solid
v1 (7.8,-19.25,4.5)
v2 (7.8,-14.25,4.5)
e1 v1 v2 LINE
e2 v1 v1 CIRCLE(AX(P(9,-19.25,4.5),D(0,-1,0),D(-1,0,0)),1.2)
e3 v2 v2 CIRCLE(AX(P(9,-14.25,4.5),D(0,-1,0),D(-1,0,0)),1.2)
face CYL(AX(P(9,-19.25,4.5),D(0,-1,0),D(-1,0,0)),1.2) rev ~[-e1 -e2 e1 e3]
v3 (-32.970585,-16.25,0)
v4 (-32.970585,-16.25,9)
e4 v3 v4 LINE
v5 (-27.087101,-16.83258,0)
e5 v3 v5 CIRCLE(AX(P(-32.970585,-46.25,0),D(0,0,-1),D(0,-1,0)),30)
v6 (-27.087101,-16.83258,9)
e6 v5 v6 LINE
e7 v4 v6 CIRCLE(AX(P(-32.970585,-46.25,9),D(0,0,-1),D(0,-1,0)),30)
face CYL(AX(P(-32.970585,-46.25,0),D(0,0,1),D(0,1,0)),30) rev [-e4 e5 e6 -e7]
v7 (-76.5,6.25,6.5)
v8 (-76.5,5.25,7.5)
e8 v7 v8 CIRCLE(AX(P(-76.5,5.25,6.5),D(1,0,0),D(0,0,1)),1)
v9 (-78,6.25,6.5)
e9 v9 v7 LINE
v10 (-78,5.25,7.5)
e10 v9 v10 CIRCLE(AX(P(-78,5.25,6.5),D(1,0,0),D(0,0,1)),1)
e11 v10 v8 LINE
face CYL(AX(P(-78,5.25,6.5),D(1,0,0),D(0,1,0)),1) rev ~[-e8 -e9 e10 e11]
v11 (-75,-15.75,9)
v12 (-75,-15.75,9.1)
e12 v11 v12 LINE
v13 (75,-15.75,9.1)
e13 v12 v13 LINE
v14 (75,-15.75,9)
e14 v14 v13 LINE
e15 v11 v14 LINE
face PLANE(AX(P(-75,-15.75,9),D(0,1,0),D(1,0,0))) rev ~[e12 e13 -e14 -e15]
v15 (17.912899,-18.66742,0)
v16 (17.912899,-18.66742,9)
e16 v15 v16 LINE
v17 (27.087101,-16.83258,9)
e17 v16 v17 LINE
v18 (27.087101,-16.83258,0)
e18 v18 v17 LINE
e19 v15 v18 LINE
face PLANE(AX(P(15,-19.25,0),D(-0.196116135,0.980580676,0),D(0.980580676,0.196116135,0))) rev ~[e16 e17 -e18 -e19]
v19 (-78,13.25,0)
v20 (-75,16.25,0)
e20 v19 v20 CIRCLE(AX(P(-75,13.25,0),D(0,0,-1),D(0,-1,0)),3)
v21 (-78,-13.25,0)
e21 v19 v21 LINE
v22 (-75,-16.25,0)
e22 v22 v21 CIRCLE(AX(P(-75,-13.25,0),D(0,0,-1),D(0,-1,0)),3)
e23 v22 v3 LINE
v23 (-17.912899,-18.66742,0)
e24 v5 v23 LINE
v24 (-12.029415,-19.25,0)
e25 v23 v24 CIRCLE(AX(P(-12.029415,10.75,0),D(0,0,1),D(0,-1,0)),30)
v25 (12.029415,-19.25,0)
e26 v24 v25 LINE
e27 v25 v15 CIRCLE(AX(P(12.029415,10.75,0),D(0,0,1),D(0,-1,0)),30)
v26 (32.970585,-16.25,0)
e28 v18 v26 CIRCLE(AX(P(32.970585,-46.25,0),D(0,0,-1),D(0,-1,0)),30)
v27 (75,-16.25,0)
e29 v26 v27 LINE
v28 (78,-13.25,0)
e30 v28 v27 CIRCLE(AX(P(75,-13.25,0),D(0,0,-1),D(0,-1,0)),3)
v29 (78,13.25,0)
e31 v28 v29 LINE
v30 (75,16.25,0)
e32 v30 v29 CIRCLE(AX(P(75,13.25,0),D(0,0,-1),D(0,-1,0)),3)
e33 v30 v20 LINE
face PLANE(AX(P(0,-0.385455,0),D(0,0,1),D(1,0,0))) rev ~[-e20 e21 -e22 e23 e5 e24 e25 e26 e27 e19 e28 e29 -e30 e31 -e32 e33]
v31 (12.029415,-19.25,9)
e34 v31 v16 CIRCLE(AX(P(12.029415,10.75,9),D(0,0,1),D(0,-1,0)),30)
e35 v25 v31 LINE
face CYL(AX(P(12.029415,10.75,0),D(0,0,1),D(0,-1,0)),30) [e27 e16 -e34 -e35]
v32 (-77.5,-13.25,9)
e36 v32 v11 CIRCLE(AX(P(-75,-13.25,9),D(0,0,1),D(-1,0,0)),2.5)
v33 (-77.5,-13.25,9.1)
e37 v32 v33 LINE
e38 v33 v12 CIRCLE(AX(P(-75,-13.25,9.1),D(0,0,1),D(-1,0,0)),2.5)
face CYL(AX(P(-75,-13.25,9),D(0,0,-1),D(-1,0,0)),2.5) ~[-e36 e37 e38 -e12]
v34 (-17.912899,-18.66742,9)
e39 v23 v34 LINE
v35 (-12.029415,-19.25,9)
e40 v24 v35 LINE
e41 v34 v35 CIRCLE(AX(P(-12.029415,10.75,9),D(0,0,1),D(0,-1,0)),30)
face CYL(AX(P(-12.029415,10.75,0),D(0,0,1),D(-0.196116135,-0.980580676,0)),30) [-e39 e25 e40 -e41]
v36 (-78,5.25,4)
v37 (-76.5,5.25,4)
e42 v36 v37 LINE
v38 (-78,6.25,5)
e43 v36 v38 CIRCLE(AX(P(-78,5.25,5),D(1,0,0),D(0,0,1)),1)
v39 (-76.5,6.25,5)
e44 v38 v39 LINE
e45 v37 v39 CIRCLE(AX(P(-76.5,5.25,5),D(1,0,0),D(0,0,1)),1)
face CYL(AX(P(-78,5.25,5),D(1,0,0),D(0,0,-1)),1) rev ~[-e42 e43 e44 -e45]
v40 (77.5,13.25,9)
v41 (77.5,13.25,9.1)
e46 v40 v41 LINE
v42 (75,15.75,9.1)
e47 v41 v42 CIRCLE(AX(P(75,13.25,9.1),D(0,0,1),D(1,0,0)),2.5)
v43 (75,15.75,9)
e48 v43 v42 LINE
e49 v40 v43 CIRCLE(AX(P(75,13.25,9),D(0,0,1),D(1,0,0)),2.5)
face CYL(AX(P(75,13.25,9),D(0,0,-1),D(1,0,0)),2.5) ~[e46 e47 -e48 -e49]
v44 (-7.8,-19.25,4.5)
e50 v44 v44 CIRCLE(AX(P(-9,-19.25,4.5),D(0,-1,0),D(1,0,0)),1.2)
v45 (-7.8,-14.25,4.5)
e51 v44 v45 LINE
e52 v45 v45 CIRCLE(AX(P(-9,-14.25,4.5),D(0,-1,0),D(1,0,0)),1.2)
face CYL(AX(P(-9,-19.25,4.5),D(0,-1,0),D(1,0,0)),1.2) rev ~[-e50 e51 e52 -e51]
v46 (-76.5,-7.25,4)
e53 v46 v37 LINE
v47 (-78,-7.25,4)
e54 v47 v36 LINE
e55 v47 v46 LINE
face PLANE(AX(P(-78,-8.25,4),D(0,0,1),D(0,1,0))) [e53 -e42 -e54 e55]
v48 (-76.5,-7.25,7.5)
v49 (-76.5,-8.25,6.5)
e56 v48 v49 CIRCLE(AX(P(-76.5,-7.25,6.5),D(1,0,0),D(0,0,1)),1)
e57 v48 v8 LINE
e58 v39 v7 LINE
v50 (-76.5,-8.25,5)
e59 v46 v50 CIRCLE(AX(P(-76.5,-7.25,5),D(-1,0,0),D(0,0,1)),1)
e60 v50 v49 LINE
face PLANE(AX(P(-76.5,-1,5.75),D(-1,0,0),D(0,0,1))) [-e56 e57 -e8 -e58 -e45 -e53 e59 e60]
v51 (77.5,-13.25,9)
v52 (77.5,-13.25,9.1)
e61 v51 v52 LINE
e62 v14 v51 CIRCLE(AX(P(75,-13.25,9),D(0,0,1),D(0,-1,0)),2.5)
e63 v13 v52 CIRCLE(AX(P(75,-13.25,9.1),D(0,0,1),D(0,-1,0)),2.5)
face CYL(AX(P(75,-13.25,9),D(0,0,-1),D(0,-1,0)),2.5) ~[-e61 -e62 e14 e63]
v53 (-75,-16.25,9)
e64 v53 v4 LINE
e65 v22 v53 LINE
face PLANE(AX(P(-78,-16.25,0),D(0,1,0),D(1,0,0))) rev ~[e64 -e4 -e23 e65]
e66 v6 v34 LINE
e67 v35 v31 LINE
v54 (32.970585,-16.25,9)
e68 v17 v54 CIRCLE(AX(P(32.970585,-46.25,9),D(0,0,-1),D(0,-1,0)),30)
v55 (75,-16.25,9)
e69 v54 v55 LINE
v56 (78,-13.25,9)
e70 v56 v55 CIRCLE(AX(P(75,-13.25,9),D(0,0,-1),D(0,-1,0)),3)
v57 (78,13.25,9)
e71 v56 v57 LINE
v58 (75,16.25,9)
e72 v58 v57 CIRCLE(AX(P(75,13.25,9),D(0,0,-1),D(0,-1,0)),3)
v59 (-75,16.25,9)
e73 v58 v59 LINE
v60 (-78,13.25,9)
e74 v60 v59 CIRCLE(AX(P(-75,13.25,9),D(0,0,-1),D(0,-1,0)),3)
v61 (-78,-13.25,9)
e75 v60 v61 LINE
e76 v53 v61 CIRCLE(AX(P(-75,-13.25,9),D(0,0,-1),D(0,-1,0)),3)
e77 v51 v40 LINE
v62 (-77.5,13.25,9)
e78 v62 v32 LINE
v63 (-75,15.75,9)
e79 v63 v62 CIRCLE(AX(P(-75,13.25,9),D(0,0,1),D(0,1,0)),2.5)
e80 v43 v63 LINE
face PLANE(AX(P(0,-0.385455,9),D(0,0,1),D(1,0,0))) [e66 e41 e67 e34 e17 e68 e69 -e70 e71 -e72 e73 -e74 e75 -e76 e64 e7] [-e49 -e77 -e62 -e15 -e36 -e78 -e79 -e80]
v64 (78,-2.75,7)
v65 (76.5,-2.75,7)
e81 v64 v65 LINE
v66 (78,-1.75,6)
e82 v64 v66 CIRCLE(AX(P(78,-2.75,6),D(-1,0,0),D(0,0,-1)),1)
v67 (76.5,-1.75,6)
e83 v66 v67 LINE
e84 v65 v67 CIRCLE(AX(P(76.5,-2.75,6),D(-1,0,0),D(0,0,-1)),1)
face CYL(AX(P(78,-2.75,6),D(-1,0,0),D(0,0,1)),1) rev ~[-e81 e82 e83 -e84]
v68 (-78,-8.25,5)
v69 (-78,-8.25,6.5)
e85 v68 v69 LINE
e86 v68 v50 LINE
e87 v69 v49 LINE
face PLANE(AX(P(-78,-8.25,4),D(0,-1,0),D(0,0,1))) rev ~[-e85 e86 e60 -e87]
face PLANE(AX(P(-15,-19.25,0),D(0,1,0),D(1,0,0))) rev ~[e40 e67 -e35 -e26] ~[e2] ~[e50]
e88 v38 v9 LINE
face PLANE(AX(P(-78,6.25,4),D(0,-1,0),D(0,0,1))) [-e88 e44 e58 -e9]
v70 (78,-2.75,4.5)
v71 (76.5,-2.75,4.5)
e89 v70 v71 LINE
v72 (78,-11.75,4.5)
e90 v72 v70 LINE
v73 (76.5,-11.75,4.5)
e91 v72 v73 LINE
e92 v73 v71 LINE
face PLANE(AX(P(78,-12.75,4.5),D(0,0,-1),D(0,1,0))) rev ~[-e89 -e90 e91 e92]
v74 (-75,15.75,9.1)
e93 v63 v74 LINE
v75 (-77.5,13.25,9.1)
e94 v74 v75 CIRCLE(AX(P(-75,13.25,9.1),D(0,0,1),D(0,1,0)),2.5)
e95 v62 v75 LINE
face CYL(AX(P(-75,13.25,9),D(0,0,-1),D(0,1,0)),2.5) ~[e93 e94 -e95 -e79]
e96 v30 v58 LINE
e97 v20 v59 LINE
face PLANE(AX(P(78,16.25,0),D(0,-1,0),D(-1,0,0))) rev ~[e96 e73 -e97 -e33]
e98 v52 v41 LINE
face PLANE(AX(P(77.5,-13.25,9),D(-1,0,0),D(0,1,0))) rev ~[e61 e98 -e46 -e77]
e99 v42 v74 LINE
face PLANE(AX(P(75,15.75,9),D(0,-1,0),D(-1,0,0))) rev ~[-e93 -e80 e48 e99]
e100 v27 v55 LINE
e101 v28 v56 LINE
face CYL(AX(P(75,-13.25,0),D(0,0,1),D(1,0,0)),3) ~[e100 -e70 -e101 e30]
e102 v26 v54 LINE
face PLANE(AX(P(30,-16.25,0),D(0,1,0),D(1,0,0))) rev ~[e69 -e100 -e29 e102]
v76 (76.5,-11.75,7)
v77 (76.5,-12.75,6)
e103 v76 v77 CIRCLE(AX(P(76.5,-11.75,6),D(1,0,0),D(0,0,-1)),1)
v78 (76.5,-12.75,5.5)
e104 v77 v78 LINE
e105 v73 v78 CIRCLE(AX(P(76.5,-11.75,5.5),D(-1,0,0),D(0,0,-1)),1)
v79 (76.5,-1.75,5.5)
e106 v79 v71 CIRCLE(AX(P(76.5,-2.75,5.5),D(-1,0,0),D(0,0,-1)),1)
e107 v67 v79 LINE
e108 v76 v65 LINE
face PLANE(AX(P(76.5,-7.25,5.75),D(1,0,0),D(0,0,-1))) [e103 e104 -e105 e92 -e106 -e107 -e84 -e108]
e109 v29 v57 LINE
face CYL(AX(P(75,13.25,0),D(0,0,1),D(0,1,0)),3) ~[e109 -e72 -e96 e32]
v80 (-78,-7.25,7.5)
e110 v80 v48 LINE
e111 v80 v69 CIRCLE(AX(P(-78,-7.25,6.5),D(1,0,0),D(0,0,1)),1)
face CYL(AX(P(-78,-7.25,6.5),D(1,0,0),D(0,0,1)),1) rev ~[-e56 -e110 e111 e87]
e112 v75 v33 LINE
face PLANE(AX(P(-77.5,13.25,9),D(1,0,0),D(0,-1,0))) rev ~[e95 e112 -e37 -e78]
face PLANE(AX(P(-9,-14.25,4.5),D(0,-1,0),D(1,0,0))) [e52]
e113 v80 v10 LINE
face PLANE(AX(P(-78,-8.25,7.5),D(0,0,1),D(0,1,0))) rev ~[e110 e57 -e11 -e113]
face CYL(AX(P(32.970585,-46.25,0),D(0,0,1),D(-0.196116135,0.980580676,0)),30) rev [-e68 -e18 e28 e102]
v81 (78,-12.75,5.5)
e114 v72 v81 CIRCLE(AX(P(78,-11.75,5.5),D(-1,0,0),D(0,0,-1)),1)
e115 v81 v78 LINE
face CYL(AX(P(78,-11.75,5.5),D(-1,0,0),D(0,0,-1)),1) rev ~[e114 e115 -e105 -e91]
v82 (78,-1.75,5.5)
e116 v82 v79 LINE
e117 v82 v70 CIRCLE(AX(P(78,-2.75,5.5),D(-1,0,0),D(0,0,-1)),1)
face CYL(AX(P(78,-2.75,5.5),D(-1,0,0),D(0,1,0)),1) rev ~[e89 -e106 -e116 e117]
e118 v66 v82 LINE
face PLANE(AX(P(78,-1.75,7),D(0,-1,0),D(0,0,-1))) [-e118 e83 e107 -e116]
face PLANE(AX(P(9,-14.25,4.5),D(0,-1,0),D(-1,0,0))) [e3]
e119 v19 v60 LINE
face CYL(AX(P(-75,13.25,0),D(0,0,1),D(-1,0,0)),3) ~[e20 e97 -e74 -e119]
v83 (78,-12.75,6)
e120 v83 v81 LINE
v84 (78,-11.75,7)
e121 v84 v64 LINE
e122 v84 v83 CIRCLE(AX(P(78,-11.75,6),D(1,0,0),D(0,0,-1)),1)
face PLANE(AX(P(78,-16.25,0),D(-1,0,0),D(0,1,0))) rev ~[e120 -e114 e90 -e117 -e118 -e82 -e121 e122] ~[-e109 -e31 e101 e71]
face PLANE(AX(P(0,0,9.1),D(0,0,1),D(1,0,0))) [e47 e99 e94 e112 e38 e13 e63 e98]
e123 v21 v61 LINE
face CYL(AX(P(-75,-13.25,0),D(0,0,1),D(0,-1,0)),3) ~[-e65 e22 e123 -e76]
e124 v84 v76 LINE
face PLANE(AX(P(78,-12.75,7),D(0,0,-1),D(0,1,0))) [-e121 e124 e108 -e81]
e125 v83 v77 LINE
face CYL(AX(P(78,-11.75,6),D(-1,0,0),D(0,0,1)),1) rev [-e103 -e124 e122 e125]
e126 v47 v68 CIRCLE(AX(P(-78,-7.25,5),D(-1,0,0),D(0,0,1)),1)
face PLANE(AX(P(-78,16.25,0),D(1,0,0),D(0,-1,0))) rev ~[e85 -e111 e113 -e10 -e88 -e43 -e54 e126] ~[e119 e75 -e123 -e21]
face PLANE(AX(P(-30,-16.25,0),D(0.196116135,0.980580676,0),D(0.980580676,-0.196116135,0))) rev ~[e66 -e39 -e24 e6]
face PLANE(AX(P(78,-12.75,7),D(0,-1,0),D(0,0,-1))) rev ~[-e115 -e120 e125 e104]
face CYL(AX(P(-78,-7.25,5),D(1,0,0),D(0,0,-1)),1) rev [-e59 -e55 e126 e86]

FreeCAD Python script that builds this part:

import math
import FreeCAD as App
import Part
import Sketcher

V = App.Vector


def edges_at(feature, points):
    """Names of the edges that pass closest to the given points."""
    edges = feature.Shape.Edges
    near = lambda p: min(range(len(edges)), key=lambda i: edges[i].distToShape(Part.Vertex(*p))[0])
    return sorted({f"Edge{near(p) + 1}" for p in points})


def add_polygon(sketch, points):
    """Adds a closed chain of lines whose ends are joined by coincident constraints."""
    first, n = sketch.GeometryCount, len(points)
    for a, b in zip(points, points[1:] + points[:1]):
        sketch.addGeometry(Part.LineSegment(App.Vector(*a, 0), App.Vector(*b, 0)), False)
    for i in range(n):
        sketch.addConstraint(Sketcher.Constraint("Coincident", first + i, 2, first + (i + 1) % n, 1))

doc = App.newDocument("Part")
body = doc.addObject("PartDesign::Body", "Body")

# Sketch on XY plane
sketch1 = body.newObject("Sketcher::SketchObject", "Sketch")
sketch1.AttachmentSupport = (doc.getObject("XY_Plane"), [""])
sketch1.MapMode = "FlatFace"
add_polygon(sketch1, [(78, -16), (78, 16), (-78, 16), (-78, -16), (-30, -16), (-15, -19), (15, -19), (30, -16)])  # lines 0-7
sketch1.addConstraint([
    Sketcher.Constraint("Vertical", 0),
    Sketcher.Constraint("Horizontal", 1),
    Sketcher.Constraint("Vertical", 2),
    Sketcher.Constraint("Horizontal", 3),
    Sketcher.Constraint("Horizontal", 5),
    Sketcher.Constraint("Horizontal", 7),
    Sketcher.Constraint("Symmetric", 0, 2, 2, 2, -1, 1),
    Sketcher.Constraint("Symmetric", 3, 2, 6, 2, -2),
    Sketcher.Constraint("Equal", 4, 6),
    Sketcher.Constraint("DistanceX", 1, 2, 1, 1, 156.0),
    Sketcher.Constraint("DistanceX", 3, 1, 3, 2, 48.0),
    Sketcher.Constraint("DistanceX", 5, 1, 5, 2, 30.0),
    Sketcher.Constraint("DistanceY", 0, 1, 0, 2, 32.5),
    Sketcher.Constraint("DistanceY", 4, 2, 3, 2, 3.0),
])
pad1 = body.newObject("PartDesign::Pad", "Pad")
pad1.Profile = sketch1
pad1.Length = 9
doc.recompute()

fillet = body.newObject("PartDesign::Fillet", "Fillet")
fillet.Base = (pad1, edges_at(pad1, [
    (30, -16.25, 4.5),
    (15, -19.25, 4.5),
    (-15, -19.25, 4.5),
    (-30, -16.25, 4.5),
]))
fillet.Radius = 30
doc.recompute()

fillet2 = body.newObject("PartDesign::Fillet", "Fillet001")
fillet2.Base = (fillet, edges_at(fillet, [
    (-78, 16.25, 4.5),
    (78, 16.25, 4.5),
    (78, -16.25, 4.5),
    (-78, -16.25, 4.5),
]))
fillet2.Radius = 3

# Sketch on XY plane
sketch2 = body.newObject("Sketcher::SketchObject", "Sketch001")
sketch2.AttachmentSupport = (doc.getObject("XY_Plane"), [""])
sketch2.MapMode = "FlatFace"
sketch2.AttachmentOffset = App.Placement(V(0, 0, 9), App.Rotation())
sketch2.addGeometry([
    Part.ArcOfCircle(Part.Circle(V(75, -13.2, 0), V(0, 0, 1), 2.5), math.radians(-90), math.radians(0)),  # 0
    Part.LineSegment(V(77.5, -13.2, 0), V(77.5, 13.2, 0)),  # 1
    Part.ArcOfCircle(Part.Circle(V(75, 13.2, 0), V(0, 0, 1), 2.5), math.radians(0), math.radians(90)),  # 2
    Part.LineSegment(V(75, 15.8, 0), V(-75, 15.8, 0)),  # 3
    Part.ArcOfCircle(Part.Circle(V(-75, 13.2, 0), V(0, 0, 1), 2.5), math.radians(90), math.radians(180)),  # 4
    Part.LineSegment(V(-77.5, 13.2, 0), V(-77.5, -13.2, 0)),  # 5
    Part.ArcOfCircle(Part.Circle(V(-75, -13.2, 0), V(0, 0, 1), 2.5), math.radians(180), math.radians(270)),  # 6
    Part.LineSegment(V(-75, -15.8, 0), V(75, -15.8, 0)),  # 7
], False)
sketch2.addConstraint([
    Sketcher.Constraint("Tangent", 0, 2, 1, 1),
    Sketcher.Constraint("Tangent", 1, 2, 2, 1),
    Sketcher.Constraint("Tangent", 2, 2, 3, 1),
    Sketcher.Constraint("Tangent", 3, 2, 4, 1),
    Sketcher.Constraint("Tangent", 4, 2, 5, 1),
    Sketcher.Constraint("Tangent", 5, 2, 6, 1),
    Sketcher.Constraint("Tangent", 6, 2, 7, 1),
    Sketcher.Constraint("Tangent", 7, 2, 0, 1),
    Sketcher.Constraint("Vertical", 1),
    Sketcher.Constraint("Horizontal", 3),
    Sketcher.Constraint("Vertical", 5),
    Sketcher.Constraint("Horizontal", 7),
    Sketcher.Constraint("Equal", 0, 2),
    Sketcher.Constraint("Equal", 2, 4),
    Sketcher.Constraint("Equal", 4, 6),
    Sketcher.Constraint("Symmetric", 0, 3, 4, 3, -1, 1),
    Sketcher.Constraint("Radius", 0, 2.5),
    Sketcher.Constraint("DistanceX", 3, 2, 3, 1, 150.0),
    Sketcher.Constraint("DistanceY", 1, 1, 1, 2, 26.5),
])
pad2 = body.newObject("PartDesign::Pad", "Pad001")
pad2.Profile = sketch2
pad2.Length = 0.1

# Sketch on XZ plane
sketch3 = body.newObject("Sketcher::SketchObject", "Sketch002")
sketch3.AttachmentSupport = (doc.getObject("XZ_Plane"), [""])
sketch3.MapMode = "FlatFace"
sketch3.AttachmentOffset = App.Placement(V(0, 0, 19.25), App.Rotation())
sketch3.addGeometry([
    Part.Circle(V(-9, 4.5, 0), V(0, 0, 1), 1.2),
    Part.Circle(V(9, 4.5, 0), V(0, 0, 1), 1.2),
], False)
sketch3.addConstraint([
    Sketcher.Constraint("Equal", 0, 1),
    Sketcher.Constraint("Symmetric", 0, 3, 1, 3, -2),
    Sketcher.Constraint("Diameter", 0, 2.4),
    Sketcher.Constraint("DistanceX", 0, 3, -1, 1, 9.0),
    Sketcher.Constraint("DistanceY", -1, 1, 0, 3, 4.5),
])
pocket1 = body.newObject("PartDesign::Pocket", "Pocket")
pocket1.Profile = sketch3
pocket1.Length = 5

# Sketch on YZ plane
sketch4 = body.newObject("Sketcher::SketchObject", "Sketch003")
sketch4.AttachmentSupport = (doc.getObject("YZ_Plane"), [""])
sketch4.MapMode = "FlatFace"
sketch4.AttachmentOffset = App.Placement(V(0, 0, -78), App.Rotation())
add_polygon(sketch4, [(6.2, 4), (-8.2, 4), (-8.2, 7.5), (6.2, 7.5)])  # lines 0-3
sketch4.addConstraint([
    Sketcher.Constraint("Horizontal", 0),
    Sketcher.Constraint("Vertical", 1),
    Sketcher.Constraint("Horizontal", 2),
    Sketcher.Constraint("Vertical", 3),
    Sketcher.Constraint("DistanceX", 0, 2, 0, 1, 14.5),
    Sketcher.Constraint("DistanceY", 1, 1, 1, 2, 3.5),
    Sketcher.Constraint("DistanceY", -1, 1, 0, 2, 4.0),
    Sketcher.Constraint("DistanceX", 0, 2, -1, 1, 8.25),
])
pocket2 = body.newObject("PartDesign::Pocket", "Pocket001")
pocket2.Profile = sketch4
pocket2.Length = 1.5
pocket2.Reversed = True

# Sketch on YZ plane
sketch5 = body.newObject("Sketcher::SketchObject", "Sketch004")
sketch5.AttachmentSupport = (doc.getObject("YZ_Plane"), [""])
sketch5.MapMode = "FlatFace"
sketch5.AttachmentOffset = App.Placement(V(0, 0, 78), App.Rotation())
add_polygon(sketch5, [(-1.8, 7), (-12.8, 7), (-12.8, 4.5), (-1.8, 4.5)])  # lines 0-3
sketch5.addConstraint([
    Sketcher.Constraint("Horizontal", 0),
    Sketcher.Constraint("Vertical", 1),
    Sketcher.Constraint("Horizontal", 2),
    Sketcher.Constraint("Vertical", 3),
    Sketcher.Constraint("DistanceX", 0, 2, 0, 1, 11.0),
    Sketcher.Constraint("DistanceY", 1, 2, 1, 1, 2.5),
    Sketcher.Constraint("DistanceY", -1, 1, 0, 2, 7.0),
    Sketcher.Constraint("DistanceX", 0, 2, -1, 1, 12.75),
])
pocket3 = body.newObject("PartDesign::Pocket", "Pocket002")
pocket3.Profile = sketch5
pocket3.Length = 1.5
doc.recompute()

fillet3 = body.newObject("PartDesign::Fillet", "Fillet002")
fillet3.Base = (pocket3, edges_at(pocket3, [
    (-77.25, -8.25, 4),
    (-77.25, 6.25, 4),
    (-77.25, 6.25, 7.5),
    (-77.25, -8.25, 7.5),
    (77.25, -12.75, 7),
    (77.25, -1.75, 7),
    (77.25, -1.75, 4.5),
    (77.25, -12.75, 4.5),
]))
fillet3.Radius = 1

doc.recompute()
